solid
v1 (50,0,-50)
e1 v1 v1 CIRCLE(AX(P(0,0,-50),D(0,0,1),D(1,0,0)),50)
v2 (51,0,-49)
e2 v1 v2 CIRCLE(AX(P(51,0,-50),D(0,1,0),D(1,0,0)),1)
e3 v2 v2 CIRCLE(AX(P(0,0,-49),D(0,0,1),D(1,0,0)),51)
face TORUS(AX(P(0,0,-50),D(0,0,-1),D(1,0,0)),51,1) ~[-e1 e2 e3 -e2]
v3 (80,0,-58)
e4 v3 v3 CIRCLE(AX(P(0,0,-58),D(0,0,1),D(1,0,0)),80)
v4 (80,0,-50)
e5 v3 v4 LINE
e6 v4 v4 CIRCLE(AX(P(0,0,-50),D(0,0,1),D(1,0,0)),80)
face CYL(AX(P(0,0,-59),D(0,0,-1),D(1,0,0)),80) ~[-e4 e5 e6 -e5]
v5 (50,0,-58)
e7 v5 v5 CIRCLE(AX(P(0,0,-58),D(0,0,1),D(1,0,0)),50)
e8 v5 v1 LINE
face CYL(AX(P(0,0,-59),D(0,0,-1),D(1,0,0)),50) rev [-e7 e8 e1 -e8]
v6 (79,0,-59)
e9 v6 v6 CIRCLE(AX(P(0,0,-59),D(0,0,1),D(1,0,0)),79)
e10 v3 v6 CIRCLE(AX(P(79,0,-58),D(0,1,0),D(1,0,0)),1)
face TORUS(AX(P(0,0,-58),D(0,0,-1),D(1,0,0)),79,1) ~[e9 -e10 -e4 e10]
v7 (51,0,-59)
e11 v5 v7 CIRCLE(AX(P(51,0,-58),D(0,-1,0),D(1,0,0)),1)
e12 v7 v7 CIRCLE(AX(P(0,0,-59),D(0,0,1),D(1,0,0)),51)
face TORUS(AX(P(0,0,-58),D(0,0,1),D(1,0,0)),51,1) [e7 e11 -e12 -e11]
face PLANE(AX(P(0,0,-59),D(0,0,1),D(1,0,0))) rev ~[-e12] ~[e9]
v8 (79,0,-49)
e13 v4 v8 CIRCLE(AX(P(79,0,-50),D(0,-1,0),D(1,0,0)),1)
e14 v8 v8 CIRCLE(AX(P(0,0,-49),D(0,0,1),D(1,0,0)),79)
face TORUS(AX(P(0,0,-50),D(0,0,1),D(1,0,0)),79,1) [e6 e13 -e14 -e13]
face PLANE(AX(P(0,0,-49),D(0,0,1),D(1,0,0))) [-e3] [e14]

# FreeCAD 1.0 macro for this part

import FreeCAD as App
import Part
import Sketcher
from FreeCAD import Vector
Q = App.Units.Quantity


def edges_at(feature, points):
    """Names of the edges that pass closest to the given points."""
    edges = feature.Shape.Edges
    near = lambda p: min(range(len(edges)), key=lambda i: edges[i].distToShape(Part.Vertex(*p))[0])
    return sorted({f"Edge{near(p) + 1}" for p in points})

doc = App.newDocument("Part")
body = doc.addObject("PartDesign::Body", "Body")

# Sketch on XY plane
sketch1 = body.newObject("Sketcher::SketchObject", "Sketch")
sketch1.AttachmentSupport = (doc.getObject("XY_Plane"), [""])
sketch1.MapMode = "FlatFace"
sketch1.addGeometry([
    Part.Circle(Vector(0, 0, 0), Vector(0, 0, 1), 80),
    Part.Circle(Vector(0, 0, 0), Vector(0, 0, 1), 50),
], False)
sketch1.addConstraint([
    Sketcher.Constraint("Coincident", 0, 3, -1, 1),
    Sketcher.Constraint("Coincident", 1, 3, -1, 1),
    Sketcher.Constraint("Diameter", 0, Q("160 mm")),
    Sketcher.Constraint("Diameter", 1, Q("100 mm")),
])
pad1 = body.newObject("PartDesign::Pad", "Pad")
pad1.Profile = sketch1
pad1.Length = 10
doc.recompute()

fillet = body.newObject("PartDesign::Fillet", "Fillet")
fillet.Base = (pad1, edges_at(pad1, [
    (-80, 0, 10),
    (-80, 0, 0),
    (-50, 0, 10),
    (-50, 0, 0),
]))
fillet.Radius = 1
body2 = doc.addObject("PartDesign::Body", "Body001")
doc.recompute()

body.Placement = App.Placement(Vector(0, 0, -59), App.Rotation(Vector(0, 0, 1), 0))
boolean = body2.newObject("PartDesign::Boolean", "Boolean")
boolean.Type = "Fuse"
boolean.addObjects([body])

doc.recompute()
